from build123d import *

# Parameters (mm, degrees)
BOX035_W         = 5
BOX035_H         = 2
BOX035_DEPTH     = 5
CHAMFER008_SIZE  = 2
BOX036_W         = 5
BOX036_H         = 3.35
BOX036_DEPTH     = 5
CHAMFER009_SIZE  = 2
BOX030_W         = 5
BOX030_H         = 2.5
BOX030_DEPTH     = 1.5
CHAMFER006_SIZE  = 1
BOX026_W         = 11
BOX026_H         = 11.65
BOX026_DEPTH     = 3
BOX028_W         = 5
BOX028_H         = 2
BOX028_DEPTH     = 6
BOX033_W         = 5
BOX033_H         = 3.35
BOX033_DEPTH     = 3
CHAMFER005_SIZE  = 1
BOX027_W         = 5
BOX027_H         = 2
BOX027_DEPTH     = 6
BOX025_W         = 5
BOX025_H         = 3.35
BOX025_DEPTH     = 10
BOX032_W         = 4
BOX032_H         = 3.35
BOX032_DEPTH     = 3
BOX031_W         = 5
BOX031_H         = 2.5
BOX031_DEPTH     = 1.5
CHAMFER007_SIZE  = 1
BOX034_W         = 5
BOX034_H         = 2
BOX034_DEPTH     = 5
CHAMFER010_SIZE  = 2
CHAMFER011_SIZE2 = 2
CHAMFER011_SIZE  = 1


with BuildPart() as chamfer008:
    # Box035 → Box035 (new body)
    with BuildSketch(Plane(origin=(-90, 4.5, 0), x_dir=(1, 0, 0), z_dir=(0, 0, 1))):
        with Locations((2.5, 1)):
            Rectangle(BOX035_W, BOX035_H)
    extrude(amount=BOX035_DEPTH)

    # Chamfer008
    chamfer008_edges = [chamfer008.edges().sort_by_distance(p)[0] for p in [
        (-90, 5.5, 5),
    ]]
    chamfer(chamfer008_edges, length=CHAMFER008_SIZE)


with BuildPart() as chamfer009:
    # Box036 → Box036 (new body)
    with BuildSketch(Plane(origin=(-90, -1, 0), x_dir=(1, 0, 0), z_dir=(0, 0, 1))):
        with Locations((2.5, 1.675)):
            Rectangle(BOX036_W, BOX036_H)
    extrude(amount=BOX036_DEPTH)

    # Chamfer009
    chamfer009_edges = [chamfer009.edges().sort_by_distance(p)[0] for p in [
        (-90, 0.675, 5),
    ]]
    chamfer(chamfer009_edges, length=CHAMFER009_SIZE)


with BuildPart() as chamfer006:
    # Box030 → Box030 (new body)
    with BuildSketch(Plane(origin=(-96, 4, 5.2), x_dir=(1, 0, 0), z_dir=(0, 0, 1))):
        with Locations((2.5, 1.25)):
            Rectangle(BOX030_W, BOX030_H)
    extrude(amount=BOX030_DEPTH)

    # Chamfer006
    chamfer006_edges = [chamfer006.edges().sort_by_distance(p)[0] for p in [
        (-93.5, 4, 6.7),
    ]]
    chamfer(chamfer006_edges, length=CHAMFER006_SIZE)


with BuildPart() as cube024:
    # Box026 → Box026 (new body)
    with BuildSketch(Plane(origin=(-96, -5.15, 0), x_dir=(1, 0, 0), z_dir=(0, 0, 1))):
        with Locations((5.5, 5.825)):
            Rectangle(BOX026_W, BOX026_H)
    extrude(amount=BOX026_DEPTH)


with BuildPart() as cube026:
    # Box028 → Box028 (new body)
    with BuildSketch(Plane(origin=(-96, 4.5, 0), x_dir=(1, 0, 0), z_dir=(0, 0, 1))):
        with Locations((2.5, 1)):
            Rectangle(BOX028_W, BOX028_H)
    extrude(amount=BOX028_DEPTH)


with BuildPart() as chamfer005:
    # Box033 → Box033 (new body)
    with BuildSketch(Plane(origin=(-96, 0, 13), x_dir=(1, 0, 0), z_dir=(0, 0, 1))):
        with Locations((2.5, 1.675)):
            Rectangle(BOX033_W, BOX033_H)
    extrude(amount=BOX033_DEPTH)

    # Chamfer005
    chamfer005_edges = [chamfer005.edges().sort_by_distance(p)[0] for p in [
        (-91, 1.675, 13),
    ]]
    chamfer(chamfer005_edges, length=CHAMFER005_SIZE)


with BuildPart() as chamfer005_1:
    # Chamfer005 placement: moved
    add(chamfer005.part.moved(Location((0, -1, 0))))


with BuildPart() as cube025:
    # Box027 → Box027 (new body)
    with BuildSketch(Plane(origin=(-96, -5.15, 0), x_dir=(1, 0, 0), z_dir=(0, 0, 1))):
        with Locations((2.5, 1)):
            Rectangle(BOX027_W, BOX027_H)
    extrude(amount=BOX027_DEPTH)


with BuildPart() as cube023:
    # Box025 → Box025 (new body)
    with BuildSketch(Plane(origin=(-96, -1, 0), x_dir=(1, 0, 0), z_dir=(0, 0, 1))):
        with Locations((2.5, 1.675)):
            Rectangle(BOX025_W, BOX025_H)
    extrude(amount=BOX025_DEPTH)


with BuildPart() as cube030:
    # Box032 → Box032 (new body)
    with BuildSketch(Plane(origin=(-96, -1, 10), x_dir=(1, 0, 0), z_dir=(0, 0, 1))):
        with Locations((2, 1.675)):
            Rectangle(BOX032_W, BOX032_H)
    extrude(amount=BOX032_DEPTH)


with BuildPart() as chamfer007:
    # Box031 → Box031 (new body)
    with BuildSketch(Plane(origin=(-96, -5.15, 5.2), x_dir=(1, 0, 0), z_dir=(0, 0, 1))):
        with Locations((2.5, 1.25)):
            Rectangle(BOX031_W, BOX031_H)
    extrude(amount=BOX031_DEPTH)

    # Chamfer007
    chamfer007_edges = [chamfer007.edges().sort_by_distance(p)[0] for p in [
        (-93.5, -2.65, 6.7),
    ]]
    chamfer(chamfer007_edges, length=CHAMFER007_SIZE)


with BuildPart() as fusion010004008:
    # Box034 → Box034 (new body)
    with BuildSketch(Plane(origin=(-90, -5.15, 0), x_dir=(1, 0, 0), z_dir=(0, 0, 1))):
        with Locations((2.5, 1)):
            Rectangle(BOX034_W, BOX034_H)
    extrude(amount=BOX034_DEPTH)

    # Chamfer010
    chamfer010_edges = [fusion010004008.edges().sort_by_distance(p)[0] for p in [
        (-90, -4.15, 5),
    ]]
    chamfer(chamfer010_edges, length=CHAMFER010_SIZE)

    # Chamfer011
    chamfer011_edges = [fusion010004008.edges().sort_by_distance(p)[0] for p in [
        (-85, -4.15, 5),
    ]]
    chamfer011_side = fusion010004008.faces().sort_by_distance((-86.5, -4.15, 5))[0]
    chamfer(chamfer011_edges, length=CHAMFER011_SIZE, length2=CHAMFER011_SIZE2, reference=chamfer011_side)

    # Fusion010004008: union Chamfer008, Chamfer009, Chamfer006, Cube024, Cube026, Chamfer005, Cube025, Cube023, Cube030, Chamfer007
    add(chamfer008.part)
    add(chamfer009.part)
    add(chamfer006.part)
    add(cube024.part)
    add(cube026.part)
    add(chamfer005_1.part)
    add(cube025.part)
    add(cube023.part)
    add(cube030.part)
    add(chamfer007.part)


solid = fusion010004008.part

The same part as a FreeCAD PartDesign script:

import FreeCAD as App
import Part
import Sketcher
Q = App.Units.Quantity


def edges_at(feature, points):
    """Names of the edges that pass closest to the given points."""
    edges = feature.Shape.Edges
    near = lambda p: min(range(len(edges)), key=lambda i: edges[i].distToShape(Part.Vertex(*p))[0])
    return sorted({f"Edge{near(p) + 1}" for p in points})


def add_polygon(sketch, points):
    """Adds a closed chain of lines whose ends are joined by coincident constraints."""
    first, n = sketch.GeometryCount, len(points)
    for a, b in zip(points, points[1:] + points[:1]):
        sketch.addGeometry(Part.LineSegment(App.Vector(*a, 0), App.Vector(*b, 0)), False)
    for i in range(n):
        sketch.addConstraint(Sketcher.Constraint("Coincident", first + i, 2, first + (i + 1) % n, 1))

doc = App.newDocument("Part")
params = doc.addObject("Spreadsheet::Sheet", "Params")
for row, (alias, value) in enumerate([
    ("sketch1_width", "5 mm"),
    ("sketch1_height", "2 mm"),
    ("pad1_length", "5 mm"),
    ("chamfer_size", "2 mm"),
    ("sketch2_width", "5 mm"),
    ("sketch2_height", "3.35 mm"),
    ("pad2_length", "5 mm"),
    ("chamfer2_size", "2 mm"),
    ("sketch3_width", "5 mm"),
    ("sketch3_height", "2.5 mm"),
    ("pad3_length", "1.5 mm"),
    ("chamfer3_size", "1 mm"),
    ("sketch4_width", "11 mm"),
    ("sketch4_height", "11.65 mm"),
    ("pad4_length", "3 mm"),
    ("sketch5_width", "5 mm"),
    ("sketch5_height", "2 mm"),
    ("pad5_length", "6 mm"),
    ("sketch6_width", "5 mm"),
    ("sketch6_height", "3.35 mm"),
    ("pad6_length", "3 mm"),
    ("chamfer4_size", "1 mm"),
    ("sketch7_width", "5 mm"),
    ("sketch7_height", "2 mm"),
    ("pad7_length", "6 mm"),
    ("sketch8_width", "5 mm"),
    ("sketch8_height", "3.35 mm"),
    ("pad8_length", "10 mm"),
    ("sketch9_width", "4 mm"),
    ("sketch9_height", "3.35 mm"),
    ("pad9_length", "3 mm"),
    ("sketch10_width", "5 mm"),
    ("sketch10_height", "2.5 mm"),
    ("pad10_length", "1.5 mm"),
    ("chamfer5_size", "1 mm"),
    ("sketch11_width", "5 mm"),
    ("sketch11_height", "2 mm"),
    ("pad11_length", "5 mm"),
    ("chamfer6_size", "2 mm"),
    ("chamfer7_size", "1 mm"),
    ("chamfer7_size2", "2 mm"),
], start=1):
    params.set(f"A{row}", alias)
    params.set(f"B{row}", "=" + value)
    params.setAlias(f"B{row}", alias)

body = doc.addObject("PartDesign::Body", "Body")

# Sketch on XY plane
sketch1 = body.newObject("Sketcher::SketchObject", "Sketch")
sketch1.AttachmentSupport = (doc.getObject("XY_Plane"), [""])
sketch1.MapMode = "FlatFace"
add_polygon(sketch1, [(-90, 6.5), (-90, 4.5), (-85, 4.5), (-85, 6.5)])  # lines 0-3
sketch1.addConstraint(Sketcher.Constraint("Vertical", 0))
sketch1.addConstraint(Sketcher.Constraint("Horizontal", 1))
sketch1.addConstraint(Sketcher.Constraint("Vertical", 2))
sketch1.addConstraint(Sketcher.Constraint("Horizontal", 3))
sketch1.addConstraint(Sketcher.Constraint("DistanceX", 1, 1, 1, 2, Q("5 mm")))
sketch1.addConstraint(Sketcher.Constraint("DistanceY", 0, 2, 0, 1, Q("2 mm")))
sketch1.addConstraint(Sketcher.Constraint("DistanceX", 0, 2, -1, 1, Q("90 mm")))
sketch1.addConstraint(Sketcher.Constraint("DistanceY", -1, 1, 0, 2, Q("4.5 mm")))
sketch1.setExpression("Constraints[8]", "Params.sketch1_width")
sketch1.setExpression("Constraints[9]", "Params.sketch1_height")
pad1 = body.newObject("PartDesign::Pad", "Pad")
pad1.Profile = sketch1
pad1.setExpression("Length", "Params.pad1_length")
doc.recompute()

chamfer = body.newObject("PartDesign::Chamfer", "Chamfer")
chamfer.Base = (pad1, edges_at(pad1, [(-90, 5.5, 5)]))
chamfer.setExpression("Size", "Params.chamfer_size")
body2 = doc.addObject("PartDesign::Body", "Body001")

# Sketch on XY plane
sketch2 = body2.newObject("Sketcher::SketchObject", "Sketch001")
sketch2.AttachmentSupport = (doc.getObject("XY_Plane001"), [""])
sketch2.MapMode = "FlatFace"
add_polygon(sketch2, [(-90, 2.4), (-90, -1), (-85, -1), (-85, 2.4)])  # lines 0-3
sketch2.addConstraint(Sketcher.Constraint("Vertical", 0))
sketch2.addConstraint(Sketcher.Constraint("Horizontal", 1))
sketch2.addConstraint(Sketcher.Constraint("Vertical", 2))
sketch2.addConstraint(Sketcher.Constraint("Horizontal", 3))
sketch2.addConstraint(Sketcher.Constraint("DistanceX", 1, 1, 1, 2, Q("5 mm")))
sketch2.addConstraint(Sketcher.Constraint("DistanceX", 0, 2, -1, 1, Q("90 mm")))
sketch2.addConstraint(Sketcher.Constraint("DistanceY", 0, 2, -1, 1, Q("1 mm")))
sketch2.addConstraint(Sketcher.Constraint("DistanceY", 0, 2, 0, 1, Q("3.35 mm")))
sketch2.setExpression("Constraints[8]", "Params.sketch2_width")
sketch2.setExpression("Constraints[11]", "Params.sketch2_height")
pad2 = body2.newObject("PartDesign::Pad", "Pad001")
pad2.Profile = sketch2
pad2.setExpression("Length", "Params.pad2_length")
doc.recompute()

chamfer2 = body2.newObject("PartDesign::Chamfer", "Chamfer001")
chamfer2.Base = (pad2, edges_at(pad2, [(-90, 0.675, 5)]))
chamfer2.setExpression("Size", "Params.chamfer2_size")
body3 = doc.addObject("PartDesign::Body", "Body002")

# Sketch on XY plane
sketch3 = body3.newObject("Sketcher::SketchObject", "Sketch002")
sketch3.AttachmentSupport = (doc.getObject("XY_Plane002"), [""])
sketch3.MapMode = "FlatFace"
sketch3.AttachmentOffset = App.Placement(App.Vector(0, 0, 5.2), App.Rotation())
add_polygon(sketch3, [(-96, 6.5), (-96, 4), (-91, 4), (-91, 6.5)])  # lines 0-3
sketch3.addConstraint(Sketcher.Constraint("Vertical", 0))
sketch3.addConstraint(Sketcher.Constraint("Horizontal", 1))
sketch3.addConstraint(Sketcher.Constraint("Vertical", 2))
sketch3.addConstraint(Sketcher.Constraint("Horizontal", 3))
sketch3.addConstraint(Sketcher.Constraint("DistanceX", 1, 1, 1, 2, Q("5 mm")))
sketch3.addConstraint(Sketcher.Constraint("DistanceY", 0, 2, 0, 1, Q("2.5 mm")))
sketch3.addConstraint(Sketcher.Constraint("DistanceX", 0, 2, -1, 1, Q("96 mm")))
sketch3.addConstraint(Sketcher.Constraint("DistanceY", -1, 1, 0, 2, Q("4 mm")))
sketch3.setExpression("Constraints[8]", "Params.sketch3_width")
sketch3.setExpression("Constraints[9]", "Params.sketch3_height")
pad3 = body3.newObject("PartDesign::Pad", "Pad002")
pad3.Profile = sketch3
pad3.setExpression("Length", "Params.pad3_length")
doc.recompute()

chamfer3 = body3.newObject("PartDesign::Chamfer", "Chamfer002")
chamfer3.Base = (pad3, edges_at(pad3, [(-93.5, 4, 6.7)]))
chamfer3.setExpression("Size", "Params.chamfer3_size")
body4 = doc.addObject("PartDesign::Body", "Body003")

# Sketch on XY plane
sketch4 = body4.newObject("Sketcher::SketchObject", "Sketch003")
sketch4.AttachmentSupport = (doc.getObject("XY_Plane003"), [""])
sketch4.MapMode = "FlatFace"
add_polygon(sketch4, [(-96, 6), (-96, -5), (-85, -5), (-85, 6)])  # lines 0-3
sketch4.addConstraint(Sketcher.Constraint("Vertical", 0))
sketch4.addConstraint(Sketcher.Constraint("Horizontal", 1))
sketch4.addConstraint(Sketcher.Constraint("Vertical", 2))
sketch4.addConstraint(Sketcher.Constraint("Horizontal", 3))
sketch4.addConstraint(Sketcher.Constraint("DistanceX", 1, 1, 1, 2, Q("11 mm")))
sketch4.addConstraint(Sketcher.Constraint("DistanceX", 0, 2, -1, 1, Q("96 mm")))
sketch4.addConstraint(Sketcher.Constraint("DistanceY", 0, 2, 0, 1, Q("11.65 mm")))
sketch4.addConstraint(Sketcher.Constraint("DistanceY", -1, 1, 2, 2, Q("6.5 mm")))
sketch4.setExpression("Constraints[8]", "Params.sketch4_width")
sketch4.setExpression("Constraints[10]", "Params.sketch4_height")
pad4 = body4.newObject("PartDesign::Pad", "Pad003")
pad4.Profile = sketch4
pad4.setExpression("Length", "Params.pad4_length")
body5 = doc.addObject("PartDesign::Body", "Body004")

# Sketch on XY plane
sketch5 = body5.newObject("Sketcher::SketchObject", "Sketch004")
sketch5.AttachmentSupport = (doc.getObject("XY_Plane004"), [""])
sketch5.MapMode = "FlatFace"
add_polygon(sketch5, [(-96, 6.5), (-96, 4.5), (-91, 4.5), (-91, 6.5)])  # lines 0-3
sketch5.addConstraint(Sketcher.Constraint("Vertical", 0))
sketch5.addConstraint(Sketcher.Constraint("Horizontal", 1))
sketch5.addConstraint(Sketcher.Constraint("Vertical", 2))
sketch5.addConstraint(Sketcher.Constraint("Horizontal", 3))
sketch5.addConstraint(Sketcher.Constraint("DistanceX", 1, 1, 1, 2, Q("5 mm")))
sketch5.addConstraint(Sketcher.Constraint("DistanceY", 0, 2, 0, 1, Q("2 mm")))
sketch5.addConstraint(Sketcher.Constraint("DistanceX", 0, 2, -1, 1, Q("96 mm")))
sketch5.addConstraint(Sketcher.Constraint("DistanceY", -1, 1, 0, 2, Q("4.5 mm")))
sketch5.setExpression("Constraints[8]", "Params.sketch5_width")
sketch5.setExpression("Constraints[9]", "Params.sketch5_height")
pad5 = body5.newObject("PartDesign::Pad", "Pad004")
pad5.Profile = sketch5
pad5.setExpression("Length", "Params.pad5_length")
body6 = doc.addObject("PartDesign::Body", "Body005")

# Sketch on XY plane
sketch6 = body6.newObject("Sketcher::SketchObject", "Sketch005")
sketch6.AttachmentSupport = (doc.getObject("XY_Plane005"), [""])
sketch6.MapMode = "FlatFace"
sketch6.AttachmentOffset = App.Placement(App.Vector(0, 0, 13), App.Rotation())
add_polygon(sketch6, [(-96, 3.4), (-96, 0), (-91, 0), (-91, 3.4)])  # lines 0-3
sketch6.addConstraint(Sketcher.Constraint("Vertical", 0))
sketch6.addConstraint(Sketcher.Constraint("Horizontal", 1))
sketch6.addConstraint(Sketcher.Constraint("Vertical", 2))
sketch6.addConstraint(Sketcher.Constraint("Horizontal", 3))
sketch6.addConstraint(Sketcher.Constraint("PointOnObject", 0, 2, -1))
sketch6.addConstraint(Sketcher.Constraint("DistanceX", 1, 1, 1, 2, Q("5 mm")))
sketch6.addConstraint(Sketcher.Constraint("DistanceX", 0, 2, -1, 1, Q("96 mm")))
sketch6.addConstraint(Sketcher.Constraint("DistanceY", 0, 2, 0, 1, Q("3.35 mm")))
sketch6.setExpression("Constraints[9]", "Params.sketch6_width")
sketch6.setExpression("Constraints[11]", "Params.sketch6_height")
pad6 = body6.newObject("PartDesign::Pad", "Pad005")
pad6.Profile = sketch6
pad6.setExpression("Length", "Params.pad6_length")
doc.recompute()

chamfer4 = body6.newObject("PartDesign::Chamfer", "Chamfer003")
chamfer4.Base = (pad6, edges_at(pad6, [(-91, 1.675, 13)]))
chamfer4.setExpression("Size", "Params.chamfer4_size")
body7 = doc.addObject("PartDesign::Body", "Body006")
doc.recompute()

body6.Placement = App.Placement(App.Vector(0, -1, 0), App.Rotation(App.Vector(0, 0, 1), 0))
boolean = body7.newObject("PartDesign::Boolean", "Boolean")
boolean.Type = "Fuse"
boolean.addObjects([body6])
body8 = doc.addObject("PartDesign::Body", "Body007")

# Sketch on XY plane
sketch7 = body8.newObject("Sketcher::SketchObject", "Sketch006")
sketch7.AttachmentSupport = (doc.getObject("XY_Plane007"), [""])
sketch7.MapMode = "FlatFace"
add_polygon(sketch7, [(-96, -3.1), (-96, -5.2), (-91, -5.2), (-91, -3.1)])  # lines 0-3
sketch7.addConstraint(Sketcher.Constraint("Vertical", 0))
sketch7.addConstraint(Sketcher.Constraint("Horizontal", 1))
sketch7.addConstraint(Sketcher.Constraint("Vertical", 2))
sketch7.addConstraint(Sketcher.Constraint("Horizontal", 3))
sketch7.addConstraint(Sketcher.Constraint("DistanceX", 1, 1, 1, 2, Q("5 mm")))
sketch7.addConstraint(Sketcher.Constraint("DistanceY", 0, 2, 0, 1, Q("2 mm")))
sketch7.addConstraint(Sketcher.Constraint("DistanceX", 0, 2, -1, 1, Q("96 mm")))
sketch7.addConstraint(Sketcher.Constraint("DistanceY", 0, 2, -1, 1, Q("5.15 mm")))
sketch7.setExpression("Constraints[8]", "Params.sketch7_width")
sketch7.setExpression("Constraints[9]", "Params.sketch7_height")
pad7 = body8.newObject("PartDesign::Pad", "Pad006")
pad7.Profile = sketch7
pad7.setExpression("Length", "Params.pad7_length")
body9 = doc.addObject("PartDesign::Body", "Body008")

# Sketch on XY plane
sketch8 = body9.newObject("Sketcher::SketchObject", "Sketch007")
sketch8.AttachmentSupport = (doc.getObject("XY_Plane008"), [""])
sketch8.MapMode = "FlatFace"
add_polygon(sketch8, [(-96, 2.4), (-96, -1), (-91, -1), (-91, 2.4)])  # lines 0-3
sketch8.addConstraint(Sketcher.Constraint("Vertical", 0))
sketch8.addConstraint(Sketcher.Constraint("Horizontal", 1))
sketch8.addConstraint(Sketcher.Constraint("Vertical", 2))
sketch8.addConstraint(Sketcher.Constraint("Horizontal", 3))
sketch8.addConstraint(Sketcher.Constraint("DistanceX", 1, 1, 1, 2, Q("5 mm")))
sketch8.addConstraint(Sketcher.Constraint("DistanceX", 0, 2, -1, 1, Q("96 mm")))
sketch8.addConstraint(Sketcher.Constraint("DistanceY", 0, 2, -1, 1, Q("1 mm")))
sketch8.addConstraint(Sketcher.Constraint("DistanceY", 0, 2, 0, 1, Q("3.35 mm")))
sketch8.setExpression("Constraints[8]", "Params.sketch8_width")
sketch8.setExpression("Constraints[11]", "Params.sketch8_height")
pad8 = body9.newObject("PartDesign::Pad", "Pad007")
pad8.Profile = sketch8
pad8.setExpression("Length", "Params.pad8_length")
body10 = doc.addObject("PartDesign::Body", "Body009")

# Sketch on XY plane
sketch9 = body10.newObject("Sketcher::SketchObject", "Sketch008")
sketch9.AttachmentSupport = (doc.getObject("XY_Plane009"), [""])
sketch9.MapMode = "FlatFace"
sketch9.AttachmentOffset = App.Placement(App.Vector(0, 0, 10), App.Rotation())
add_polygon(sketch9, [(-96, 2.4), (-96, -1), (-92, -1), (-92, 2.4)])  # lines 0-3
sketch9.addConstraint(Sketcher.Constraint("Vertical", 0))
sketch9.addConstraint(Sketcher.Constraint("Horizontal", 1))
sketch9.addConstraint(Sketcher.Constraint("Vertical", 2))
sketch9.addConstraint(Sketcher.Constraint("Horizontal", 3))
sketch9.addConstraint(Sketcher.Constraint("DistanceX", 1, 1, 1, 2, Q("4 mm")))
sketch9.addConstraint(Sketcher.Constraint("DistanceX", 0, 2, -1, 1, Q("96 mm")))
sketch9.addConstraint(Sketcher.Constraint("DistanceY", 0, 2, -1, 1, Q("1 mm")))
sketch9.addConstraint(Sketcher.Constraint("DistanceY", 0, 2, 0, 1, Q("3.35 mm")))
sketch9.setExpression("Constraints[8]", "Params.sketch9_width")
sketch9.setExpression("Constraints[11]", "Params.sketch9_height")
pad9 = body10.newObject("PartDesign::Pad", "Pad008")
pad9.Profile = sketch9
pad9.setExpression("Length", "Params.pad9_length")
body11 = doc.addObject("PartDesign::Body", "Body010")

# Sketch on XY plane
sketch10 = body11.newObject("Sketcher::SketchObject", "Sketch009")
sketch10.AttachmentSupport = (doc.getObject("XY_Plane010"), [""])
sketch10.MapMode = "FlatFace"
sketch10.AttachmentOffset = App.Placement(App.Vector(0, 0, 5.2), App.Rotation())
add_polygon(sketch10, [(-96, -2.6), (-96, -5.2), (-91, -5.2), (-91, -2.6)])  # lines 0-3
sketch10.addConstraint(Sketcher.Constraint("Vertical", 0))
sketch10.addConstraint(Sketcher.Constraint("Horizontal", 1))
sketch10.addConstraint(Sketcher.Constraint("Vertical", 2))
sketch10.addConstraint(Sketcher.Constraint("Horizontal", 3))
sketch10.addConstraint(Sketcher.Constraint("DistanceX", 1, 1, 1, 2, Q("5 mm")))
sketch10.addConstraint(Sketcher.Constraint("DistanceY", 0, 2, 0, 1, Q("2.5 mm")))
sketch10.addConstraint(Sketcher.Constraint("DistanceX", 0, 2, -1, 1, Q("96 mm")))
sketch10.addConstraint(Sketcher.Constraint("DistanceY", 0, 2, -1, 1, Q("5.15 mm")))
sketch10.setExpression("Constraints[8]", "Params.sketch10_width")
sketch10.setExpression("Constraints[9]", "Params.sketch10_height")
pad10 = body11.newObject("PartDesign::Pad", "Pad009")
pad10.Profile = sketch10
pad10.setExpression("Length", "Params.pad10_length")
doc.recompute()

chamfer5 = body11.newObject("PartDesign::Chamfer", "Chamfer004")
chamfer5.Base = (pad10, edges_at(pad10, [(-93.5, -2.65, 6.7)]))
chamfer5.setExpression("Size", "Params.chamfer5_size")
body12 = doc.addObject("PartDesign::Body", "Body011")
body12.AllowCompound = True

# Sketch on XY plane
sketch11 = body12.newObject("Sketcher::SketchObject", "Sketch010")
sketch11.AttachmentSupport = (doc.getObject("XY_Plane011"), [""])
sketch11.MapMode = "FlatFace"
add_polygon(sketch11, [(-90, -3.1), (-90, -5.2), (-85, -5.2), (-85, -3.1)])  # lines 0-3
sketch11.addConstraint(Sketcher.Constraint("Vertical", 0))
sketch11.addConstraint(Sketcher.Constraint("Horizontal", 1))
sketch11.addConstraint(Sketcher.Constraint("Vertical", 2))
sketch11.addConstraint(Sketcher.Constraint("Horizontal", 3))
sketch11.addConstraint(Sketcher.Constraint("DistanceX", 1, 1, 1, 2, Q("5 mm")))
sketch11.addConstraint(Sketcher.Constraint("DistanceY", 0, 2, 0, 1, Q("2 mm")))
sketch11.addConstraint(Sketcher.Constraint("DistanceX", 0, 2, -1, 1, Q("90 mm")))
sketch11.addConstraint(Sketcher.Constraint("DistanceY", 0, 2, -1, 1, Q("5.15 mm")))
sketch11.setExpression("Constraints[8]", "Params.sketch11_width")
sketch11.setExpression("Constraints[9]", "Params.sketch11_height")
pad11 = body12.newObject("PartDesign::Pad", "Pad010")
pad11.Profile = sketch11
pad11.setExpression("Length", "Params.pad11_length")
doc.recompute()

chamfer6 = body12.newObject("PartDesign::Chamfer", "Chamfer005")
chamfer6.Base = (pad11, edges_at(pad11, [(-90, -4.15, 5)]))
chamfer6.setExpression("Size", "Params.chamfer6_size")
doc.recompute()

chamfer7 = body12.newObject("PartDesign::Chamfer", "Chamfer006")
chamfer7.Base = (chamfer6, edges_at(chamfer6, [(-85, -4.15, 5)]))
chamfer7.ChamferType = "Two distances"
chamfer7.setExpression("Size", "Params.chamfer7_size")
chamfer7.setExpression("Size2", "Params.chamfer7_size2")
doc.recompute()

boolean2 = body12.newObject("PartDesign::Boolean", "Boolean001")
boolean2.Type = "Fuse"
boolean2.addObjects([body])
doc.recompute()

boolean3 = body12.newObject("PartDesign::Boolean", "Boolean002")
boolean3.Type = "Fuse"
boolean3.addObjects([body2])
doc.recompute()

boolean4 = body12.newObject("PartDesign::Boolean", "Boolean003")
boolean4.Type = "Fuse"
boolean4.addObjects([body3])
doc.recompute()

boolean5 = body12.newObject("PartDesign::Boolean", "Boolean004")
boolean5.Type = "Fuse"
boolean5.addObjects([body4])
doc.recompute()

boolean6 = body12.newObject("PartDesign::Boolean", "Boolean005")
boolean6.Type = "Fuse"
boolean6.addObjects([body5])
doc.recompute()

boolean7 = body12.newObject("PartDesign::Boolean", "Boolean006")
boolean7.Type = "Fuse"
boolean7.addObjects([body7])
doc.recompute()

boolean8 = body12.newObject("PartDesign::Boolean", "Boolean007")
boolean8.Type = "Fuse"
boolean8.addObjects([body8])
doc.recompute()

boolean9 = body12.newObject("PartDesign::Boolean", "Boolean008")
boolean9.Type = "Fuse"
boolean9.addObjects([body9])
doc.recompute()

boolean10 = body12.newObject("PartDesign::Boolean", "Boolean009")
boolean10.Type = "Fuse"
boolean10.addObjects([body10])
doc.recompute()

boolean11 = body12.newObject("PartDesign::Boolean", "Boolean010")
boolean11.Type = "Fuse"
boolean11.addObjects([body11])

doc.recompute()
